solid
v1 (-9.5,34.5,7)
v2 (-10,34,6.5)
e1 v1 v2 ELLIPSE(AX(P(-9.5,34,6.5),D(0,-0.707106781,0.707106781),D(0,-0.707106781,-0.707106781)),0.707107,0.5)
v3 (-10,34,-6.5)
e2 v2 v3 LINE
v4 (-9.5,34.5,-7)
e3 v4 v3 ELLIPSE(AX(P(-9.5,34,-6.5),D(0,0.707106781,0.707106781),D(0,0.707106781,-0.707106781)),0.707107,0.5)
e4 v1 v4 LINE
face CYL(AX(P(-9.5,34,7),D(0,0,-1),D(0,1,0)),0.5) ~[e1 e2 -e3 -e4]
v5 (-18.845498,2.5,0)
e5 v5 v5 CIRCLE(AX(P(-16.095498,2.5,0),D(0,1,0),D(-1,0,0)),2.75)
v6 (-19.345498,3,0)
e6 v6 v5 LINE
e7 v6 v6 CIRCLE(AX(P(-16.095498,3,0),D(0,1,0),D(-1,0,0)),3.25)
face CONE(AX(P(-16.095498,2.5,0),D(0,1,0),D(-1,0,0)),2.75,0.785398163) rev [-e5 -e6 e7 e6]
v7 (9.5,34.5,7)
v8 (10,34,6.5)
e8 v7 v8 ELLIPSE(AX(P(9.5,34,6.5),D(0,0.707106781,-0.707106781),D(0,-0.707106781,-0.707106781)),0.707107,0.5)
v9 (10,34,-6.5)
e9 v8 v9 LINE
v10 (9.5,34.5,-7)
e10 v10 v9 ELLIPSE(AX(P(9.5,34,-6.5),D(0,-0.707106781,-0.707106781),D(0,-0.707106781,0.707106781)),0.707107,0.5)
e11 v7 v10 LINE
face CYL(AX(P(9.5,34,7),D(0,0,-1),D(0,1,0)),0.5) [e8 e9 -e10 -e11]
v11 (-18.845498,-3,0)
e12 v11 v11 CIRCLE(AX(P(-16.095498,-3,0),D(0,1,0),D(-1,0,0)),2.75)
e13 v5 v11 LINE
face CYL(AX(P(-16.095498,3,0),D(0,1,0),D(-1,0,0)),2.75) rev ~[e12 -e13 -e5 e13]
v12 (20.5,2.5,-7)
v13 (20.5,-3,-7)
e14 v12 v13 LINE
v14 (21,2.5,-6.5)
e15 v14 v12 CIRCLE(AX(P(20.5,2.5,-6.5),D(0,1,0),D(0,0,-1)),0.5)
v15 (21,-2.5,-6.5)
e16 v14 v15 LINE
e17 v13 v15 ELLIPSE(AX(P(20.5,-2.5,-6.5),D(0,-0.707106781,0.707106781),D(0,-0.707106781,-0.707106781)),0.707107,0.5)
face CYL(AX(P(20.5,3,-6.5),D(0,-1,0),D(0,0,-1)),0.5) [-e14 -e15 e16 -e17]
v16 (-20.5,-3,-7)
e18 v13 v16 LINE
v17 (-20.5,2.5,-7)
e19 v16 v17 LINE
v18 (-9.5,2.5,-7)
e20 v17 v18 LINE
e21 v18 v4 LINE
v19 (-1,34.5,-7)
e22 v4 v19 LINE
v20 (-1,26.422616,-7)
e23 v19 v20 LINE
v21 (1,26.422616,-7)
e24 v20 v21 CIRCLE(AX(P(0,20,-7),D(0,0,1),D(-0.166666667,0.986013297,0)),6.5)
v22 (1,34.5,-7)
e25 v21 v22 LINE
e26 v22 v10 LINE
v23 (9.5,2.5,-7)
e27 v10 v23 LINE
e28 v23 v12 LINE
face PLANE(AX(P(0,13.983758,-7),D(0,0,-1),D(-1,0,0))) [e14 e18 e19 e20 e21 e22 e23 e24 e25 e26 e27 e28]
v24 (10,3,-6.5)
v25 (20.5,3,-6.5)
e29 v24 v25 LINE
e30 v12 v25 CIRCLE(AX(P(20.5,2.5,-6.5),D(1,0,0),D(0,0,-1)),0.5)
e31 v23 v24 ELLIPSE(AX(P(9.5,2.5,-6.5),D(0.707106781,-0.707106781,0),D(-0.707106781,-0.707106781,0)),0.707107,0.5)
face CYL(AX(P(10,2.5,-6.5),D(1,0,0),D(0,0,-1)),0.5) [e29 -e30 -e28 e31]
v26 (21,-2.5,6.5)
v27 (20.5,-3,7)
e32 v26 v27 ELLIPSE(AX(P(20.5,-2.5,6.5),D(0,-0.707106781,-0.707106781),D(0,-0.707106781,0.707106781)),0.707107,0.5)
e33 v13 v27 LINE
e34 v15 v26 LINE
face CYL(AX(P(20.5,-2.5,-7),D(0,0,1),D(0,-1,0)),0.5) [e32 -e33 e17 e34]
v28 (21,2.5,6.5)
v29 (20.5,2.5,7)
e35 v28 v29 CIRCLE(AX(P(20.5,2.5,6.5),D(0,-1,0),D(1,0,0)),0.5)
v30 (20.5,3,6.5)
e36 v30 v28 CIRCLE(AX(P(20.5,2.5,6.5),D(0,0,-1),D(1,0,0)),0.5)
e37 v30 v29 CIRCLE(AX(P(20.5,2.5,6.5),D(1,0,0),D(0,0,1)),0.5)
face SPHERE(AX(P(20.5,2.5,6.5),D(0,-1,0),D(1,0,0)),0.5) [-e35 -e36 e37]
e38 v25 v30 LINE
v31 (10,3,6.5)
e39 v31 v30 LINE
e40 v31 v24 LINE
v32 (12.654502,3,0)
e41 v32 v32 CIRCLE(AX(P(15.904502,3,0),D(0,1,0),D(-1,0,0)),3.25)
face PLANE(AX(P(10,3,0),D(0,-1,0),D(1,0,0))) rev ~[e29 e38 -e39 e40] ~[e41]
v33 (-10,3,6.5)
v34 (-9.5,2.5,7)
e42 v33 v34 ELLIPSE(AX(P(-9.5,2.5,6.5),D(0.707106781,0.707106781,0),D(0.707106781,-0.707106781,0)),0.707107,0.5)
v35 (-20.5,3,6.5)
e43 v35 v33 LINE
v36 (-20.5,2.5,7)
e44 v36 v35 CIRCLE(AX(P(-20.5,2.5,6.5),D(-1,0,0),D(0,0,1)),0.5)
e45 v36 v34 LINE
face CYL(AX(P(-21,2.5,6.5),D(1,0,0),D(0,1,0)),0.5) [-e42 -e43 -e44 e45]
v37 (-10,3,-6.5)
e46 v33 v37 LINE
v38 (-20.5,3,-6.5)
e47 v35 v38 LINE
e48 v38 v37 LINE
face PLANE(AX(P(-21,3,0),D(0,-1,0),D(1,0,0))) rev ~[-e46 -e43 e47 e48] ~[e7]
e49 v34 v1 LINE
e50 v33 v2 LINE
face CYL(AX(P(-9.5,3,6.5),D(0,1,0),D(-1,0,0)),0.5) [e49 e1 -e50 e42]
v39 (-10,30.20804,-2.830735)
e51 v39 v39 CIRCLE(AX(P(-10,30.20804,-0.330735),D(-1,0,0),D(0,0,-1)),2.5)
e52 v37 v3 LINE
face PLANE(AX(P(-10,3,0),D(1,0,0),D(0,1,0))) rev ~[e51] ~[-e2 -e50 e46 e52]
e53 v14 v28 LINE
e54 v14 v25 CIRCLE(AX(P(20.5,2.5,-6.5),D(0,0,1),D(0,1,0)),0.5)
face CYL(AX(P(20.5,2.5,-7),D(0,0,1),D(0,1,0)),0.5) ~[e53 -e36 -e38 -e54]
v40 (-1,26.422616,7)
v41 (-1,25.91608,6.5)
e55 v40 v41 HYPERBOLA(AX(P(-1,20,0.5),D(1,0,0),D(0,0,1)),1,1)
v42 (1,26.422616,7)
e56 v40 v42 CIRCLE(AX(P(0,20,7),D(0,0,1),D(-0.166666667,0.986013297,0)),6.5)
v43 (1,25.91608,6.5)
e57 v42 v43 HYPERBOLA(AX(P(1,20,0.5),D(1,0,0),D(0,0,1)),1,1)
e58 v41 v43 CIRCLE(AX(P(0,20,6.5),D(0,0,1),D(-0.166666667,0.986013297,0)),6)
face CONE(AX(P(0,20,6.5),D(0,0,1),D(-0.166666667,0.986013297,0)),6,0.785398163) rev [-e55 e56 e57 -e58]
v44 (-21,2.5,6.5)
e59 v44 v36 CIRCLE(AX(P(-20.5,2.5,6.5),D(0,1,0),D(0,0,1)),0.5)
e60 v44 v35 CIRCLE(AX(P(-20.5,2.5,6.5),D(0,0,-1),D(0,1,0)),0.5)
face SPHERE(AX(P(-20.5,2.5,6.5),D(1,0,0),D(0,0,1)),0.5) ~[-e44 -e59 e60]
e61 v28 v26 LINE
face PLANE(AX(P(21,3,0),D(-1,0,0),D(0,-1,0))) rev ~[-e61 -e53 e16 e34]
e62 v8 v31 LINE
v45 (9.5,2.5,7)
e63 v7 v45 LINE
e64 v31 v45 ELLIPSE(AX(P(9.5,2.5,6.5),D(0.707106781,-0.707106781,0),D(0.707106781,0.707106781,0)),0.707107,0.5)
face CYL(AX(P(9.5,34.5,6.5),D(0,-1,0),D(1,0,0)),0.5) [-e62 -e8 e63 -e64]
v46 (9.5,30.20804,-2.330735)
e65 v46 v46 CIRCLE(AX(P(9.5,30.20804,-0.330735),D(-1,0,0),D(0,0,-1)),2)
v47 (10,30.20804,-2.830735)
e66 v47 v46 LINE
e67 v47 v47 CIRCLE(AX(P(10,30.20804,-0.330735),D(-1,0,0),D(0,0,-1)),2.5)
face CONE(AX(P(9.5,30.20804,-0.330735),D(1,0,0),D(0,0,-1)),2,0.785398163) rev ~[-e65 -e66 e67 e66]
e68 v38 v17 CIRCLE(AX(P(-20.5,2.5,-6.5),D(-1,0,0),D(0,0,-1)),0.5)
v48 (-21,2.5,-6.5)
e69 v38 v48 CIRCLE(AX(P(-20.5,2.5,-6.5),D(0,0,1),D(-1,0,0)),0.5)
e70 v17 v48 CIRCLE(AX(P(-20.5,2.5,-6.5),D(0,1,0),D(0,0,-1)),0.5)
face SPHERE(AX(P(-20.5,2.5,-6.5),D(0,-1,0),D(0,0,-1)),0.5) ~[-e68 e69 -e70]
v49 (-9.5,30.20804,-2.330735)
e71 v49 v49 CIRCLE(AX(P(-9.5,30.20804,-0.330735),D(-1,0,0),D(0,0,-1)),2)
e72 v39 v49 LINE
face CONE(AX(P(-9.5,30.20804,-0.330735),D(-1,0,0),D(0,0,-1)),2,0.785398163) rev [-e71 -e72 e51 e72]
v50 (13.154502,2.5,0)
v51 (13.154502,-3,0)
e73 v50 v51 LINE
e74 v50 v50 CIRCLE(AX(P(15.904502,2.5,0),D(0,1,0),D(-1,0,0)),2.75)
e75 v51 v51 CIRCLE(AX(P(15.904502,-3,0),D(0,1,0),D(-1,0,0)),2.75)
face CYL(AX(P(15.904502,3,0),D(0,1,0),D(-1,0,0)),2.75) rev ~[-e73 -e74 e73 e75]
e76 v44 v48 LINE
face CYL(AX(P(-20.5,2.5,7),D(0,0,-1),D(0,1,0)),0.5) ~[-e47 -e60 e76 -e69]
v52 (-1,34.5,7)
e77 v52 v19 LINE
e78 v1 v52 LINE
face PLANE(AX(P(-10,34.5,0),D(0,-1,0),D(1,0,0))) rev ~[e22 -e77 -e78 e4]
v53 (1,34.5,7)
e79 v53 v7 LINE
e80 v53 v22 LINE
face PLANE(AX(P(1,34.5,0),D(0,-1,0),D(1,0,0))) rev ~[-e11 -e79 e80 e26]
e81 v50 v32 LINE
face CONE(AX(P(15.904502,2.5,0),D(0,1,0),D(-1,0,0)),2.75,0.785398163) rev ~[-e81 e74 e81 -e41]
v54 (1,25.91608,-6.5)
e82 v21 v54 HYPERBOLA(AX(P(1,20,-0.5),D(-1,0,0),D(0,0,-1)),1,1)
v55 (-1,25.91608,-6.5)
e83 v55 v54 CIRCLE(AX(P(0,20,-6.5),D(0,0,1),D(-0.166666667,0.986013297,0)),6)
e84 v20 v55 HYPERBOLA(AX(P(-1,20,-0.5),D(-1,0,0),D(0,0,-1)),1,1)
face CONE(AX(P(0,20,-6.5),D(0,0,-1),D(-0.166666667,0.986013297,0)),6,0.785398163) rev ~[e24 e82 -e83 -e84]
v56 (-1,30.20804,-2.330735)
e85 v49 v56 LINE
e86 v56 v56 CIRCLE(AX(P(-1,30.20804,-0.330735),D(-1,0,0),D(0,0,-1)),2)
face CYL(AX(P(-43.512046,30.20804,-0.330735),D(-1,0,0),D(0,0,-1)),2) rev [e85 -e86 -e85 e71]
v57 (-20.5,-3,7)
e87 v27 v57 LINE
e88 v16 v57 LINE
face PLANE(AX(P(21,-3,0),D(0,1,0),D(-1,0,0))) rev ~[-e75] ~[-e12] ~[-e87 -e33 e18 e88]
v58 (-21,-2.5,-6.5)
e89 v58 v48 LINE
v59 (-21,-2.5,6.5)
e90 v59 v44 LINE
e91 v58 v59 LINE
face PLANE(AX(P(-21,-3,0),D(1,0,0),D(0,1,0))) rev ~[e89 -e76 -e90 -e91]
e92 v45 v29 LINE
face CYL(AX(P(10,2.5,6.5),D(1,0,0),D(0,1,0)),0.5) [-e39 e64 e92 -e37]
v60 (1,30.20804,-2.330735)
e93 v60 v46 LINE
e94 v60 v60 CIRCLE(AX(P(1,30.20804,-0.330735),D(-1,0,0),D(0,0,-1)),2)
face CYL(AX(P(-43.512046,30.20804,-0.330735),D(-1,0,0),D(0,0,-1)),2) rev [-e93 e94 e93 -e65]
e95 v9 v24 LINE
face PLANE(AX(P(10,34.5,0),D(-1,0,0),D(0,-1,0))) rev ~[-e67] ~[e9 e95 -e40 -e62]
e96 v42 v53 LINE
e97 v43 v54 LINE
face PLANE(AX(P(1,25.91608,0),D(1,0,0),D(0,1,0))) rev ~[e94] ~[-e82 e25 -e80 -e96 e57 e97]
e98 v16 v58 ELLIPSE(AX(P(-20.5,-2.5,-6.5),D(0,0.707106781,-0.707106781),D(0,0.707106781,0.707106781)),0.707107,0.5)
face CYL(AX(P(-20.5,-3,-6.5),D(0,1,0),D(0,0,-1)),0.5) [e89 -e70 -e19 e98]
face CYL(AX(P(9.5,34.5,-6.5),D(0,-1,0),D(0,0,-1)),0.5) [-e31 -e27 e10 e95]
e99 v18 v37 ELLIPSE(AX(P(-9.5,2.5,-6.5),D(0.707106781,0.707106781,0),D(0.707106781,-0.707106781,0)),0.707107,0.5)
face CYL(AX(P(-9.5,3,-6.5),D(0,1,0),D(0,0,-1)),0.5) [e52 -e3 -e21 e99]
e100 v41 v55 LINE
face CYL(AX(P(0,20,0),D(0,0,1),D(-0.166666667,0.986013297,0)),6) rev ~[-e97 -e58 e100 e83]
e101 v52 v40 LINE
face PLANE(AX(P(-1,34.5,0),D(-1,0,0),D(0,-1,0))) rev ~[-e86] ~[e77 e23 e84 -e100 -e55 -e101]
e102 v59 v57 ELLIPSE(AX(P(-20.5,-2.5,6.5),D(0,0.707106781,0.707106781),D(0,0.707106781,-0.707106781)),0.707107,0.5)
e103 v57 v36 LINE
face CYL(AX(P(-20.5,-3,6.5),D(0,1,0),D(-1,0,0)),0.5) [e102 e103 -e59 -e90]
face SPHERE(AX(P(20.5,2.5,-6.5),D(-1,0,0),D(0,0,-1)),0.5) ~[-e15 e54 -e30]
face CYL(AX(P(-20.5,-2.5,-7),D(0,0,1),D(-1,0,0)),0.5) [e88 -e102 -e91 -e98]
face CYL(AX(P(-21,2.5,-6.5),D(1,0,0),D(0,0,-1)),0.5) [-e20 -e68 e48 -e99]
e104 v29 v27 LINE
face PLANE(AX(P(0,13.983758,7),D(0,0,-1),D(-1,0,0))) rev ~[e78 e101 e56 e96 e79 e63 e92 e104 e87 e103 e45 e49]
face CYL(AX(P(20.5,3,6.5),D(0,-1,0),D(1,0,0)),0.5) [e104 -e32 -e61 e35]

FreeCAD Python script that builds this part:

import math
import FreeCAD as App
import Part
import Sketcher
Q = App.Units.Quantity


def edges_at(feature, points):
    """Names of the edges that pass closest to the given points."""
    edges = feature.Shape.Edges
    near = lambda p: min(range(len(edges)), key=lambda i: edges[i].distToShape(Part.Vertex(*p))[0])
    return sorted({f"Edge{near(p) + 1}" for p in points})

doc = App.newDocument("Part")
body = doc.addObject("PartDesign::Body", "Body")

sketch1 = body.newObject("Sketcher::SketchObject", "Sketch")
sketch1.AttachmentSupport = (doc.getObject("XY_Plane"), [""])
sketch1.MapMode = "FlatFace"
sketch1.addGeometry(Part.LineSegment(App.Vector(-21, 3, 0), App.Vector(-21, -3, 0)), False)
sketch1.addGeometry(Part.LineSegment(App.Vector(-21, -3, 0), App.Vector(21, -3, 0)), False)
sketch1.addGeometry(Part.LineSegment(App.Vector(21, -3, 0), App.Vector(21, 3, 0)), False)
sketch1.addGeometry(Part.LineSegment(App.Vector(21, 3, 0), App.Vector(10, 3, 0)), False)
sketch1.addGeometry(Part.LineSegment(App.Vector(10, 3, 0), App.Vector(10, 34.5, 0)), False)
sketch1.addGeometry(Part.LineSegment(App.Vector(10, 34.5, 0), App.Vector(1, 34.5, 0)), False)
sketch1.addGeometry(Part.LineSegment(App.Vector(1, 34.5, 0), App.Vector(1, 25.9, 0)), False)
sketch1.addGeometry(Part.ArcOfCircle(Part.Circle(App.Vector(0, 20, 0), App.Vector(0, 0, 1), 6), math.radians(100), math.radians(440)), False)
sketch1.addGeometry(Part.LineSegment(App.Vector(-1, 25.9, 0), App.Vector(-1, 34.5, 0)), False)
sketch1.addGeometry(Part.LineSegment(App.Vector(-1, 34.5, 0), App.Vector(-10, 34.5, 0)), False)
sketch1.addGeometry(Part.LineSegment(App.Vector(-10, 34.5, 0), App.Vector(-10, 3, 0)), False)
sketch1.addGeometry(Part.LineSegment(App.Vector(-10, 3, 0), App.Vector(-21, 3, 0)), False)
sketch1.addConstraint(Sketcher.Constraint("Coincident", 0, 2, 1, 1))
sketch1.addConstraint(Sketcher.Constraint("Coincident", 1, 2, 2, 1))
sketch1.addConstraint(Sketcher.Constraint("Coincident", 2, 2, 3, 1))
sketch1.addConstraint(Sketcher.Constraint("Coincident", 3, 2, 4, 1))
sketch1.addConstraint(Sketcher.Constraint("Coincident", 4, 2, 5, 1))
sketch1.addConstraint(Sketcher.Constraint("Coincident", 5, 2, 6, 1))
sketch1.addConstraint(Sketcher.Constraint("Coincident", 6, 2, 7, 2))
sketch1.addConstraint(Sketcher.Constraint("Coincident", 7, 1, 8, 1))
sketch1.addConstraint(Sketcher.Constraint("Coincident", 8, 2, 9, 1))
sketch1.addConstraint(Sketcher.Constraint("Coincident", 9, 2, 10, 1))
sketch1.addConstraint(Sketcher.Constraint("Coincident", 10, 2, 11, 1))
sketch1.addConstraint(Sketcher.Constraint("Coincident", 11, 2, 0, 1))
sketch1.addConstraint(Sketcher.Constraint("Vertical", 0))
sketch1.addConstraint(Sketcher.Constraint("Horizontal", 1))
sketch1.addConstraint(Sketcher.Constraint("Vertical", 2))
sketch1.addConstraint(Sketcher.Constraint("Horizontal", 3))
sketch1.addConstraint(Sketcher.Constraint("Vertical", 4))
sketch1.addConstraint(Sketcher.Constraint("Horizontal", 5))
sketch1.addConstraint(Sketcher.Constraint("Vertical", 6))
sketch1.addConstraint(Sketcher.Constraint("Vertical", 8))
sketch1.addConstraint(Sketcher.Constraint("Horizontal", 9))
sketch1.addConstraint(Sketcher.Constraint("Vertical", 10))
sketch1.addConstraint(Sketcher.Constraint("Horizontal", 11))
sketch1.addConstraint(Sketcher.Constraint("Symmetric", 0, 2, 2, 2, -1, 1))
sketch1.addConstraint(Sketcher.Constraint("Symmetric", 6, 2, 7, 1, -2))
sketch1.addConstraint(Sketcher.Constraint("Symmetric", 4, 2, 9, 2, -2))
sketch1.addConstraint(Sketcher.Constraint("Horizontal", 3, 2, 10, 2))
sketch1.addConstraint(Sketcher.Constraint("Radius", 7, Q("6 mm")))
sketch1.addConstraint(Sketcher.Constraint("DistanceX", 1, 1, 1, 2, Q("42 mm")))
sketch1.addConstraint(Sketcher.Constraint("DistanceX", 3, 2, 3, 1, Q("11 mm")))
sketch1.addConstraint(Sketcher.Constraint("DistanceX", 5, 2, 5, 1, Q("9 mm")))
sketch1.addConstraint(Sketcher.Constraint("DistanceY", 0, 2, 0, 1, Q("6 mm")))
sketch1.addConstraint(Sketcher.Constraint("DistanceY", 4, 1, 4, 2, Q("31.5 mm")))
sketch1.addConstraint(Sketcher.Constraint("DistanceY", -1, 1, 7, 3, Q("20 mm")))
pad1 = body.newObject("PartDesign::Pad", "Pad")
pad1.Profile = sketch1
pad1.Length = 14
pad1.Midplane = True

sketch2 = body.newObject("Sketcher::SketchObject", "Sketch001")
sketch2.AttachmentSupport = (doc.getObject("XZ_Plane"), [""])
sketch2.MapMode = "FlatFace"
sketch2.AttachmentOffset = App.Placement(App.Vector(0, 0, -3), App.Rotation())
sketch2.addGeometry(Part.Circle(App.Vector(15.9, 0, 0), App.Vector(0, 0, 1), 2.8), False)
sketch2.addGeometry(Part.Circle(App.Vector(-16.1, 0, 0), App.Vector(0, 0, 1), 2.8), False)
sketch2.addConstraint(Sketcher.Constraint("Equal", 0, 1))
sketch2.addConstraint(Sketcher.Constraint("PointOnObject", 0, 3, -1))
sketch2.addConstraint(Sketcher.Constraint("PointOnObject", 1, 3, -1))
sketch2.addConstraint(Sketcher.Constraint("Diameter", 0, Q("5.5 mm")))
sketch2.addConstraint(Sketcher.Constraint("DistanceX", 1, 3, 0, 3, Q("32 mm")))
sketch2.addConstraint(Sketcher.Constraint("DistanceX", -1, 1, 0, 3, Q("15.904502 mm")))
pocket1 = body.newObject("PartDesign::Pocket", "Pocket")
pocket1.Profile = sketch2
pocket1.Type = "ThroughAll"
pocket1.Reversed = True

sketch3 = body.newObject("Sketcher::SketchObject", "Sketch002")
sketch3.AttachmentSupport = (doc.getObject("YZ_Plane"), [""])
sketch3.MapMode = "FlatFace"
sketch3.AttachmentOffset = App.Placement(App.Vector(0, 0, -1), App.Rotation())
sketch3.addGeometry(Part.Circle(App.Vector(30.2, -0.3, 0), App.Vector(0, 0, 1), 2), False)
sketch3.addConstraint(Sketcher.Constraint("Diameter", 0, Q("4 mm")))
sketch3.addConstraint(Sketcher.Constraint("DistanceX", -1, 1, 0, 3, Q("30.20804 mm")))
sketch3.addConstraint(Sketcher.Constraint("DistanceY", 0, 3, -1, 1, Q("0.330735 mm")))
pocket2 = body.newObject("PartDesign::Pocket", "Pocket001")
pocket2.Profile = sketch3
pocket2.Type = "ThroughAll"
pocket2.Midplane = True
doc.recompute()

chamfer = body.newObject("PartDesign::Chamfer", "Chamfer")
chamfer.Base = (pocket2, edges_at(pocket2, [
    (0, 14, -7),
    (0, 14, 7),
    (18.655, 3, 0),
    (-13.345, 3, 0),
    (-10, 30.208, 1.669),
    (10, 30.208, 1.669),
]))
chamfer.Size = 0.5
doc.recompute()

fillet = body.newObject("PartDesign::Fillet", "Fillet")
fillet.Base = (chamfer, edges_at(chamfer, [
    (-15.5, 3, 7),
    (10, 18.75, -7),
    (15.5, 3, -7),
    (-21, 0, 7),
    (21, 0, -7),
    (-21, 0, -7),
    (-15.5, 3, -7),
    (-10, 18.75, -7),
    (21, 0, 7),
    (10, 34.5, 0),
    (21, 3, 0),
    (21, -3, 0),
    (-21, -3, 0),
    (-21, 3, 0),
    (-10, 34.5, 0),
    (15.5, 3, 7),
    (10, 18.75, 7),
    (-10, 18.75, 7),
]))
fillet.Radius = 0.5

doc.recompute()
